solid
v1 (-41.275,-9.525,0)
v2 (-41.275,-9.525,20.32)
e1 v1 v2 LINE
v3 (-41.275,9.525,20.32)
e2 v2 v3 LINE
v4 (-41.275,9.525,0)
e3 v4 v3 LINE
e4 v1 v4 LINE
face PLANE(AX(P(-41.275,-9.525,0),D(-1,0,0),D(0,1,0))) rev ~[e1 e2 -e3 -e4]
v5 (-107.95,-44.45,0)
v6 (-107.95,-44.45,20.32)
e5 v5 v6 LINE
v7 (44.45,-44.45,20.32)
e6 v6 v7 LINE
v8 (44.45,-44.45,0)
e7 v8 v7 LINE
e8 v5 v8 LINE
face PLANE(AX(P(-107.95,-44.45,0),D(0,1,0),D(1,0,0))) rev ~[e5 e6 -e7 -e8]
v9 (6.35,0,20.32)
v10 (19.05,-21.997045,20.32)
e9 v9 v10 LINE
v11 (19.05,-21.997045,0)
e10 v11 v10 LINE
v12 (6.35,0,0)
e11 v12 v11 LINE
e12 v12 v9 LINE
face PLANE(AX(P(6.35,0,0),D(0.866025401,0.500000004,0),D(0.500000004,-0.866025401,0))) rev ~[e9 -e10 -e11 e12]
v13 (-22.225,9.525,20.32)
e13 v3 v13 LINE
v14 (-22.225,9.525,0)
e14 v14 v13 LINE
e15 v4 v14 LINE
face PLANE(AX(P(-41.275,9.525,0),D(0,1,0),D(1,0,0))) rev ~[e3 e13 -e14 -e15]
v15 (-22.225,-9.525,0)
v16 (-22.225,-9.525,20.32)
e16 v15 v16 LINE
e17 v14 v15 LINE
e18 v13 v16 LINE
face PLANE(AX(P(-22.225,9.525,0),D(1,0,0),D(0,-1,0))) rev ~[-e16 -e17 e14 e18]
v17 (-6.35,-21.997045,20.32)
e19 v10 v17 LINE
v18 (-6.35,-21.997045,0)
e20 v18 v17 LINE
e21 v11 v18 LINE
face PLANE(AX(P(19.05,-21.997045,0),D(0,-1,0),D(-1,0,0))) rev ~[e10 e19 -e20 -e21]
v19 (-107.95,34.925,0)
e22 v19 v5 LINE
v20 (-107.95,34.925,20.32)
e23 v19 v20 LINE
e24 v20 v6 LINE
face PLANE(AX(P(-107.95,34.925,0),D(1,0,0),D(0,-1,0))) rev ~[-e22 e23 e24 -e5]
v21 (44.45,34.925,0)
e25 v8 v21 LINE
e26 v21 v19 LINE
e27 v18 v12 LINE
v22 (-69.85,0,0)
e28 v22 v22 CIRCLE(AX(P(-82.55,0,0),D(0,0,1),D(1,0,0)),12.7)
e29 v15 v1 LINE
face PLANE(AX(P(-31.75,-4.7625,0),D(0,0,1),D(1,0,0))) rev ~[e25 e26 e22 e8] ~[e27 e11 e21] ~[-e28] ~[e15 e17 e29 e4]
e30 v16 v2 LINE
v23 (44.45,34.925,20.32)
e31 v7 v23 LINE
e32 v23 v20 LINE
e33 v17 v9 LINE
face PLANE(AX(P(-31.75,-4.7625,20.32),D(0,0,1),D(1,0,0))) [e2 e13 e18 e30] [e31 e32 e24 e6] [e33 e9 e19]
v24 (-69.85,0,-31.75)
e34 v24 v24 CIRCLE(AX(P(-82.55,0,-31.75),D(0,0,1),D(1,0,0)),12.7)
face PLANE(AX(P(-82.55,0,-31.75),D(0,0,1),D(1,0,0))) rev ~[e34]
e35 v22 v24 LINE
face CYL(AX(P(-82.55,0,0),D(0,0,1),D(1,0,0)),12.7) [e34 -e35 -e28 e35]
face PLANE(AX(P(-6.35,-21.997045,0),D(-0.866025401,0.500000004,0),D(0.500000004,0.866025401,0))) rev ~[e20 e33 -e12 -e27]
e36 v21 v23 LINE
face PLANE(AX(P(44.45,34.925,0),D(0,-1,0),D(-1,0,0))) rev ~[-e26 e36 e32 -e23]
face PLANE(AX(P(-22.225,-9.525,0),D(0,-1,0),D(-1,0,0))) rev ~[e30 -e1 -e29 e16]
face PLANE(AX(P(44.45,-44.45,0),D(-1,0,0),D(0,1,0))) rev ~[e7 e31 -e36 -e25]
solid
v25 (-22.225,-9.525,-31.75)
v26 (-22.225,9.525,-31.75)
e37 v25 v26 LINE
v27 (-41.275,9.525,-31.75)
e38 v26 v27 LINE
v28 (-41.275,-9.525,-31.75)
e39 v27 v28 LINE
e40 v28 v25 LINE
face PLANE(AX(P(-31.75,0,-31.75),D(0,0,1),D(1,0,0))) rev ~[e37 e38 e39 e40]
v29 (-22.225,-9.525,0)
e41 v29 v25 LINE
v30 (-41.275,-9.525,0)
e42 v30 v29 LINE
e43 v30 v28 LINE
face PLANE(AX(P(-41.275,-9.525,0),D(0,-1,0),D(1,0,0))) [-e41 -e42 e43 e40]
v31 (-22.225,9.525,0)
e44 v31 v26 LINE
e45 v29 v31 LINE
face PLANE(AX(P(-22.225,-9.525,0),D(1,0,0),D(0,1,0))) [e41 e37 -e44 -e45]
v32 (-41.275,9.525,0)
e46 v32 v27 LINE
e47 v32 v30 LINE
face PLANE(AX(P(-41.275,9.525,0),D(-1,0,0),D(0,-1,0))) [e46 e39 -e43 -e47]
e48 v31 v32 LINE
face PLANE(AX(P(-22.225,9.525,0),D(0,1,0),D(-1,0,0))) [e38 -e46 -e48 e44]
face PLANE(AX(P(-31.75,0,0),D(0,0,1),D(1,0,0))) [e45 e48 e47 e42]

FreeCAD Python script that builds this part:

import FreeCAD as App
import Part
import Sketcher

V = App.Vector
Q = App.Units.Quantity


def add_polygon(sketch, points):
    """Adds a closed chain of lines whose ends are joined by coincident constraints."""
    first, n = sketch.GeometryCount, len(points)
    for a, b in zip(points, points[1:] + points[:1]):
        sketch.addGeometry(Part.LineSegment(App.Vector(*a, 0), App.Vector(*b, 0)), False)
    for i in range(n):
        sketch.addConstraint(Sketcher.Constraint("Coincident", first + i, 2, first + (i + 1) % n, 1))

doc = App.newDocument("Part")
body = doc.addObject("PartDesign::Body", "Body")

sketch1 = body.newObject("Sketcher::SketchObject", "Sketch")
sketch1.AttachmentSupport = (doc.getObject("XY_Plane"), [""])
sketch1.MapMode = "FlatFace"
add_polygon(sketch1, [(-108, -44), (44, -44), (44, 35), (-108, 35)])
add_polygon(sketch1, [(19, -22), (-6, -22), (6, 0)])
add_polygon(sketch1, [(-41, 10), (-22, 10), (-22, -10), (-41, -10)])
sketch1.addConstraint([
    Sketcher.Constraint("Horizontal", 0),
    Sketcher.Constraint("Vertical", 1),
    Sketcher.Constraint("Horizontal", 2),
    Sketcher.Constraint("Vertical", 3),
    Sketcher.Constraint("Horizontal", 4),
    Sketcher.Constraint("Horizontal", 7),
    Sketcher.Constraint("Vertical", 8),
    Sketcher.Constraint("Horizontal", 9),
    Sketcher.Constraint("Vertical", 10),
    Sketcher.Constraint("PointOnObject", 5, 2, -1),
    Sketcher.Constraint("Equal", 9, 8),
    Sketcher.Constraint("Equal", 5, 6),
    Sketcher.Constraint("DistanceX", 0, 1, 0, 2, Q("6 in")),
    Sketcher.Constraint("DistanceX", 4, 2, 4, 1, Q("1 in")),
    Sketcher.Constraint("Distance", 5, Q("1 in")),
    Sketcher.Constraint("DistanceX", 4, 2, 0, 2, Q("2 in")),
    Sketcher.Constraint("DistanceY", 7, 2, 1, 2, Q("1 in")),
    Sketcher.Constraint("DistanceX", 7, 1, 7, 2, Q("0.75 in")),
    Sketcher.Constraint("DistanceY", 1, 1, 1, 2, Q("3.125 in")),
    Sketcher.Constraint("DistanceX", -1, 1, 0, 2, Q("1.75 in")),
    Sketcher.Constraint("DistanceY", 0, 2, -1, 1, Q("1.75 in")),
    Sketcher.Constraint("DistanceX", 7, 2, -1, 1, Q("0.875 in")),
])
pad1 = body.newObject("PartDesign::Pad", "Pad")
pad1.Profile = sketch1
pad1.Length = Q("0.8 in")

sketch2 = body.newObject("Sketcher::SketchObject", "Sketch001")
sketch2.AttachmentSupport = (doc.getObject("XY_Plane"), [""])
sketch2.MapMode = "FlatFace"
sketch2.addGeometry(Part.Circle(V(-83, 0, 0), V(0, 0, 1), 13), False)
sketch2.addConstraint([
    Sketcher.Constraint("PointOnObject", 0, 3, -1),
    Sketcher.Constraint("Diameter", 0, Q("1 in")),
    Sketcher.Constraint("DistanceX", 0, 3, -1, 1, Q("3.25 in")),
])
pad2 = body.newObject("PartDesign::Pad", "Pad001")
pad2.Profile = sketch2
pad2.Length = Q("1.25 in")
pad2.Reversed = True
body2 = doc.addObject("PartDesign::Body", "Body001")

sketch3 = body2.newObject("Sketcher::SketchObject", "Sketch002")
sketch3.AttachmentSupport = (doc.getObject("XY_Plane001"), [""])
sketch3.MapMode = "FlatFace"
add_polygon(sketch3, [(-22, -10), (-22, 10), (-41, 10), (-41, -10)])
sketch3.addConstraint([
    Sketcher.Constraint("Vertical", 0),
    Sketcher.Constraint("Horizontal", 1),
    Sketcher.Constraint("Vertical", 2),
    Sketcher.Constraint("Horizontal", 3),
    Sketcher.Constraint("Equal", 3, 0),
    Sketcher.Constraint("DistanceX", 1, 2, 1, 1, Q("0.75 in")),
    Sketcher.Constraint("DistanceX", 0, 2, -1, 1, Q("0.875 in")),
    Sketcher.Constraint("DistanceY", -1, 1, 0, 2, Q("0.375 in")),
])
pad3 = body2.newObject("PartDesign::Pad", "Pad002")
pad3.Profile = sketch3
pad3.Length = Q("1.25 in")
pad3.Reversed = True

doc.recompute()
